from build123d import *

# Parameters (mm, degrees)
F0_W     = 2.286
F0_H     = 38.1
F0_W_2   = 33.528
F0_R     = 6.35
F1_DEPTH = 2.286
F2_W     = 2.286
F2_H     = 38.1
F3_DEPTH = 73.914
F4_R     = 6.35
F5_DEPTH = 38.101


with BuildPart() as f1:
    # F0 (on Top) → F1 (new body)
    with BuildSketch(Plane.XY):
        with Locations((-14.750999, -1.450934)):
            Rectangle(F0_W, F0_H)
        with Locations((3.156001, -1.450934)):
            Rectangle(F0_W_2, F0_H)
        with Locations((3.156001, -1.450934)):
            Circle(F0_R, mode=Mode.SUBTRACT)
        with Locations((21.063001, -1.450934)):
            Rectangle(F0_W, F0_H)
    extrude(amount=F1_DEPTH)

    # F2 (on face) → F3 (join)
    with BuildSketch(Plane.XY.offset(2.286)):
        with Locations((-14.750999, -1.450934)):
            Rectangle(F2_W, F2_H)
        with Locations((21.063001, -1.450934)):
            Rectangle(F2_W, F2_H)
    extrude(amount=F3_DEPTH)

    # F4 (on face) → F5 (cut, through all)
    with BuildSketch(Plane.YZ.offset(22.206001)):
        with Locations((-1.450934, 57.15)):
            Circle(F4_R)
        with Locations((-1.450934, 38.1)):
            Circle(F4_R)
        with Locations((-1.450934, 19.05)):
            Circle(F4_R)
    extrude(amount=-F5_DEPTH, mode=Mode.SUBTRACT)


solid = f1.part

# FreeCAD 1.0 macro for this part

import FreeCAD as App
import Part
import Sketcher
from FreeCAD import Vector
Q = App.Units.Quantity


def add_polygon(sketch, points):
    """Adds a closed chain of lines whose ends are joined by coincident constraints."""
    first, n = sketch.GeometryCount, len(points)
    for a, b in zip(points, points[1:] + points[:1]):
        sketch.addGeometry(Part.LineSegment(App.Vector(*a, 0), App.Vector(*b, 0)), False)
    for i in range(n):
        sketch.addConstraint(Sketcher.Constraint("Coincident", first + i, 2, first + (i + 1) % n, 1))

doc = App.newDocument("Part")
body = doc.addObject("PartDesign::Body", "Body")

sketch1 = doc.addObject("Sketcher::SketchObject", "Sketch")
body.addObject(sketch1)
sketch1.AttachmentSupport = (doc.XY_Plane, [""])
sketch1.MapMode = "FlatFace"
add_polygon(sketch1, [(-16, 18), (-16, -21), (22, -21), (22, 18)])
sketch1.addGeometry(Part.Circle(Vector(3, -1, 0), Vector(0, 0, 1), 6), False)
sketch1.addConstraint([
    Sketcher.Constraint("Vertical", 0),
    Sketcher.Constraint("Horizontal", 1),
    Sketcher.Constraint("Vertical", 2),
    Sketcher.Constraint("Horizontal", 3),
    Sketcher.Constraint("Equal", 3, 0),
    Sketcher.Constraint("Diameter", 4, Q("0.5 in")),
    Sketcher.Constraint("DistanceX", 1, 1, 1, 2, Q("1.5 in")),
    Sketcher.Constraint("DistanceX", 0, 2, 4, 3, Q("0.75 in")),
    Sketcher.Constraint("DistanceY", 0, 2, 4, 3, Q("0.75 in")),
    Sketcher.Constraint("DistanceX", -1, 1, 4, 3, Q("3.156001 mm")),
    Sketcher.Constraint("DistanceY", 4, 3, -1, 1, Q("1.450934 mm")),
])
pad1 = doc.addObject("PartDesign::Pad", "Pad")
body.addObject(pad1)
pad1.Profile = sketch1
pad1.Length = Q("0.09 in")

sketch2 = doc.addObject("Sketcher::SketchObject", "Sketch001")
body.addObject(sketch2)
sketch2.AttachmentSupport = (doc.XY_Plane, [""])
sketch2.MapMode = "FlatFace"
sketch2.AttachmentOffset = App.Placement(Vector(0, 0, 0.09 * 25.4), App.Rotation())
add_polygon(sketch2, [(-15.9, 17.6), (-15.9, -20.5), (-13.6, -20.5), (-13.6, 17.6)])
add_polygon(sketch2, [(19.9, 17.6), (19.9, -20.5), (22.2, -20.5), (22.2, 17.6)])
sketch2.addConstraint([
    Sketcher.Constraint("Vertical", 0),
    Sketcher.Constraint("Horizontal", 1),
    Sketcher.Constraint("Vertical", 2),
    Sketcher.Constraint("Horizontal", 3),
    Sketcher.Constraint("Vertical", 4),
    Sketcher.Constraint("Horizontal", 5),
    Sketcher.Constraint("Vertical", 6),
    Sketcher.Constraint("Horizontal", 7),
    Sketcher.Constraint("Horizontal", 1, 2, 4, 2),
    Sketcher.Constraint("Horizontal", 3, 2, 6, 2),
    Sketcher.Constraint("Equal", 3, 5),
    Sketcher.Constraint("DistanceY", 0, 2, 0, 1, Q("1.5 in")),
    Sketcher.Constraint("DistanceX", 1, 1, 1, 2, Q("0.09 in")),
    Sketcher.Constraint("DistanceX", 0, 2, 5, 2, Q("1.5 in")),
    Sketcher.Constraint("DistanceX", 0, 2, -1, 1, Q("15.893999 mm")),
    Sketcher.Constraint("DistanceY", 0, 2, -1, 1, Q("20.500934 mm")),
])
pad2 = doc.addObject("PartDesign::Pad", "Pad001")
body.addObject(pad2)
pad2.Profile = sketch2
pad2.Length = Q("2.91 in")

sketch3 = doc.addObject("Sketcher::SketchObject", "Sketch002")
body.addObject(sketch3)
sketch3.AttachmentSupport = (doc.YZ_Plane, [""])
sketch3.MapMode = "FlatFace"
sketch3.AttachmentOffset = App.Placement(Vector(0, 0, 22.206001), App.Rotation())
sketch3.addGeometry([
    Part.Circle(Vector(-1, 57, 0), Vector(0, 0, 1), 6),
    Part.Circle(Vector(-1, 38, 0), Vector(0, 0, 1), 6),
    Part.Circle(Vector(-1, 19, 0), Vector(0, 0, 1), 6),
], False)
sketch3.addConstraint([
    Sketcher.Constraint("Equal", 0, 1),
    Sketcher.Constraint("Equal", 1, 2),
    Sketcher.Constraint("Vertical", 0, 3, 1, 3),
    Sketcher.Constraint("Vertical", 1, 3, 2, 3),
    Sketcher.Constraint("Diameter", 0, Q("0.5 in")),
    Sketcher.Constraint("DistanceY", -1, 1, 1, 3, Q("1.5 in")),
    Sketcher.Constraint("DistanceY", 2, 3, 0, 3, Q("1.5 in")),
    Sketcher.Constraint("DistanceY", -1, 1, 0, 3, Q("2.25 in")),
    Sketcher.Constraint("DistanceX", 0, 3, -1, 1, Q("1.450934 mm")),
])
pocket1 = doc.addObject("PartDesign::Pocket", "Pocket")
body.addObject(pocket1)
pocket1.Profile = sketch3
pocket1.Type = "ThroughAll"

doc.recompute()
